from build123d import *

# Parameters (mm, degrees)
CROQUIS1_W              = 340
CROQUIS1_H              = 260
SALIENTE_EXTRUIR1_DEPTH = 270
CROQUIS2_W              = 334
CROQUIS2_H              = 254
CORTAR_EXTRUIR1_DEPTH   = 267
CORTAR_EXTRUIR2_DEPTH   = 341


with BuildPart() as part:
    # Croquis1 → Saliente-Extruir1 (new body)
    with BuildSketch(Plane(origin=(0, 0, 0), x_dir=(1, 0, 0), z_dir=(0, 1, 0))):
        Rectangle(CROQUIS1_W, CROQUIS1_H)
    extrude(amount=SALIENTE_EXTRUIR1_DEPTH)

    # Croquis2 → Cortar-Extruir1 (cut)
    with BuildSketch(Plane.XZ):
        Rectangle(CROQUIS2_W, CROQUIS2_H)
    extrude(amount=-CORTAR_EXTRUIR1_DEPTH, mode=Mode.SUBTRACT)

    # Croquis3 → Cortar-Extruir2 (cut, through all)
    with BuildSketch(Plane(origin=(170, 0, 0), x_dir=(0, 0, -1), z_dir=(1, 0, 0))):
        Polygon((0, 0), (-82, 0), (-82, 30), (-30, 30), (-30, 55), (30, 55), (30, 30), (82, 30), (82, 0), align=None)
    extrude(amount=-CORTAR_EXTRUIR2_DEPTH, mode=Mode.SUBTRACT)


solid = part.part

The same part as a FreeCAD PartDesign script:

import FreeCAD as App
import Part
import Sketcher


def add_polygon(sketch, points):
    """Adds a closed chain of lines whose ends are joined by coincident constraints."""
    first, n = sketch.GeometryCount, len(points)
    for a, b in zip(points, points[1:] + points[:1]):
        sketch.addGeometry(Part.LineSegment(App.Vector(*a, 0), App.Vector(*b, 0)), False)
    for i in range(n):
        sketch.addConstraint(Sketcher.Constraint("Coincident", first + i, 2, first + (i + 1) % n, 1))

doc = App.newDocument("Part")
body = doc.addObject("PartDesign::Body", "Body")

sketch1 = doc.addObject("Sketcher::SketchObject", "Sketch")
body.addObject(sketch1)
sketch1.AttachmentSupport = (doc.XZ_Plane, [""])
sketch1.MapMode = "FlatFace"
add_polygon(sketch1, [(-170, -130), (-170, 130), (170, 130), (170, -130)])
sketch1.addConstraint([
    Sketcher.Constraint("Vertical", 0),
    Sketcher.Constraint("Horizontal", 1),
    Sketcher.Constraint("Vertical", 2),
    Sketcher.Constraint("Horizontal", 3),
    Sketcher.Constraint("Symmetric", 0, 2, 2, 2, -1, 1),
    Sketcher.Constraint("DistanceX", 1, 1, 1, 2, 340.0),
    Sketcher.Constraint("DistanceY", 0, 1, 0, 2, 260.0),
])
pad1 = doc.addObject("PartDesign::Pad", "Pad")
body.addObject(pad1)
pad1.Profile = sketch1
pad1.Length = 270
pad1.Reversed = True

sketch2 = doc.addObject("Sketcher::SketchObject", "Sketch001")
body.addObject(sketch2)
sketch2.AttachmentSupport = (doc.XZ_Plane, [""])
sketch2.MapMode = "FlatFace"
add_polygon(sketch2, [(-167, 127), (-167, -127), (167, -127), (167, 127)])
sketch2.addConstraint([
    Sketcher.Constraint("Vertical", 0),
    Sketcher.Constraint("Horizontal", 1),
    Sketcher.Constraint("Vertical", 2),
    Sketcher.Constraint("Horizontal", 3),
    Sketcher.Constraint("Symmetric", 0, 2, 2, 2, -1, 1),
    Sketcher.Constraint("DistanceX", 1, 1, 1, 2, 334.0),
    Sketcher.Constraint("DistanceY", 0, 2, 0, 1, 254.0),
])
pocket1 = doc.addObject("PartDesign::Pocket", "Pocket")
body.addObject(pocket1)
pocket1.Profile = sketch2
pocket1.Length = 267

sketch3 = doc.addObject("Sketcher::SketchObject", "Sketch002")
body.addObject(sketch3)
sketch3.AttachmentSupport = (doc.YZ_Plane, [""])
sketch3.MapMode = "FlatFace"
sketch3.AttachmentOffset = App.Placement(App.Vector(0, 0, 170), App.Rotation())
add_polygon(sketch3, [(0, 82), (0, -82), (30, -82), (30, -30), (55, -30), (55, 30), (30, 30), (30, 82)])
sketch3.addConstraint([
    Sketcher.Constraint("Vertical", 0),
    Sketcher.Constraint("Horizontal", 1),
    Sketcher.Constraint("Vertical", 2),
    Sketcher.Constraint("Horizontal", 3),
    Sketcher.Constraint("Vertical", 4),
    Sketcher.Constraint("Horizontal", 5),
    Sketcher.Constraint("Vertical", 6),
    Sketcher.Constraint("Horizontal", 7),
    Sketcher.Constraint("Symmetric", 0, 2, 7, 2, -1, 1),
    Sketcher.Constraint("Symmetric", 2, 2, 5, 2, -1),
    Sketcher.Constraint("DistanceX", 1, 1, 1, 2, 30.0),
    Sketcher.Constraint("DistanceX", 3, 1, 3, 2, 25.0),
    Sketcher.Constraint("DistanceY", 0, 2, 0, 1, 164.0),
    Sketcher.Constraint("DistanceY", 2, 1, 2, 2, 52.0),
])
pocket2 = doc.addObject("PartDesign::Pocket", "Pocket001")
body.addObject(pocket2)
pocket2.Profile = sketch3
pocket2.Type = "ThroughAll"

doc.recompute()
